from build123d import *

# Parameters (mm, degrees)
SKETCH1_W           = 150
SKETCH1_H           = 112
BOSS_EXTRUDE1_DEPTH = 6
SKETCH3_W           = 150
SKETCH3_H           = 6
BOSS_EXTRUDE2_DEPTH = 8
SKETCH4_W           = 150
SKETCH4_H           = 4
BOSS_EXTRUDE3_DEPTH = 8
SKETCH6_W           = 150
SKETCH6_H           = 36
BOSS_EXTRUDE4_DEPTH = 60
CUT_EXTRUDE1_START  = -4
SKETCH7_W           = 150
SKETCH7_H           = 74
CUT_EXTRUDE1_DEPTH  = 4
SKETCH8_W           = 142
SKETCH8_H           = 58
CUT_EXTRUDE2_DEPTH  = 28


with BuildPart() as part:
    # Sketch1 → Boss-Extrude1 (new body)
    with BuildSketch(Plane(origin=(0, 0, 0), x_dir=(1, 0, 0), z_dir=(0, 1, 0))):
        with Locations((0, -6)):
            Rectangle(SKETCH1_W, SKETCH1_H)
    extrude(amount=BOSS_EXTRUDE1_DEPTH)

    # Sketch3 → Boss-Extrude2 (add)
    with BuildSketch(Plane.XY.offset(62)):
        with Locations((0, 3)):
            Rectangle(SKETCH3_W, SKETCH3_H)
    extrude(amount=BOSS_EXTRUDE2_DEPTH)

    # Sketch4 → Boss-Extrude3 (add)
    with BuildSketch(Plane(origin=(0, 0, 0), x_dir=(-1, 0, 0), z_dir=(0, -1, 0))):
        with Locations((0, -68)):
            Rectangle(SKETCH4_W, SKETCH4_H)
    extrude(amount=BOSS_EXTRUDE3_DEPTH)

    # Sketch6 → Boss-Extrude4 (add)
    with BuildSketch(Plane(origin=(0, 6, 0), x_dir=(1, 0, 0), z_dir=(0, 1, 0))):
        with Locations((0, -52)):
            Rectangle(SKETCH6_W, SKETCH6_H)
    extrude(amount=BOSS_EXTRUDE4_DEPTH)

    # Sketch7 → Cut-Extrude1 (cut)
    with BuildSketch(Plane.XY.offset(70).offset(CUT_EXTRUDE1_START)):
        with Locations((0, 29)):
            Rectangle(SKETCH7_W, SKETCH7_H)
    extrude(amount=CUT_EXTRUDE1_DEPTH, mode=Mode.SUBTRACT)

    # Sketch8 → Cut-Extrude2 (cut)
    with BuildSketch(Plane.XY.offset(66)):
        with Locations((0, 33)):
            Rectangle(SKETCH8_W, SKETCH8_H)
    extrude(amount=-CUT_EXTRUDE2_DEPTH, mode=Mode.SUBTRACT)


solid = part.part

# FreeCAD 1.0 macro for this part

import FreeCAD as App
import Part
import Sketcher
from FreeCAD import Vector
Q = App.Units.Quantity

doc = App.newDocument("Part")
body = doc.addObject("PartDesign::Body", "Body")

# Sketch on XZ plane
sketch1 = body.newObject("Sketcher::SketchObject", "Sketch")
sketch1.AttachmentSupport = (doc.getObject("XZ_Plane"), [""])
sketch1.MapMode = "FlatFace"
sketch1.addGeometry(Part.LineSegment(Vector(-75, -50, 0), Vector(-75, 62, 0)), False)
sketch1.addGeometry(Part.LineSegment(Vector(-75, 62, 0), Vector(75, 62, 0)), False)
sketch1.addGeometry(Part.LineSegment(Vector(75, 62, 0), Vector(75, -50, 0)), False)
sketch1.addGeometry(Part.LineSegment(Vector(75, -50, 0), Vector(-75, -50, 0)), False)
sketch1.addConstraint(Sketcher.Constraint("Coincident", 0, 2, 1, 1))
sketch1.addConstraint(Sketcher.Constraint("Coincident", 1, 2, 2, 1))
sketch1.addConstraint(Sketcher.Constraint("Coincident", 2, 2, 3, 1))
sketch1.addConstraint(Sketcher.Constraint("Coincident", 3, 2, 0, 1))
sketch1.addConstraint(Sketcher.Constraint("Vertical", 0))
sketch1.addConstraint(Sketcher.Constraint("Horizontal", 1))
sketch1.addConstraint(Sketcher.Constraint("Vertical", 2))
sketch1.addConstraint(Sketcher.Constraint("Horizontal", 3))
sketch1.addConstraint(Sketcher.Constraint("DistanceX", 1, 1, 1, 2, Q("150 mm")))
sketch1.addConstraint(Sketcher.Constraint("DistanceY", 0, 1, 0, 2, Q("112 mm")))
sketch1.addConstraint(Sketcher.Constraint("DistanceX", 0, 2, -1, 1, Q("75 mm")))
sketch1.addConstraint(Sketcher.Constraint("DistanceY", -1, 1, 0, 2, Q("62 mm")))
pad1 = body.newObject("PartDesign::Pad", "Pad")
pad1.Profile = sketch1
pad1.Length = 6
pad1.Reversed = True

# Sketch on XY plane
sketch2 = body.newObject("Sketcher::SketchObject", "Sketch001")
sketch2.AttachmentSupport = (doc.getObject("XY_Plane"), [""])
sketch2.MapMode = "FlatFace"
sketch2.AttachmentOffset = App.Placement(Vector(0, 0, 62), App.Rotation())
sketch2.addGeometry(Part.LineSegment(Vector(-75, 6, 0), Vector(-75, 0, 0)), False)
sketch2.addGeometry(Part.LineSegment(Vector(-75, 0, 0), Vector(75, 0, 0)), False)
sketch2.addGeometry(Part.LineSegment(Vector(75, 0, 0), Vector(75, 6, 0)), False)
sketch2.addGeometry(Part.LineSegment(Vector(75, 6, 0), Vector(-75, 6, 0)), False)
sketch2.addConstraint(Sketcher.Constraint("Coincident", 0, 2, 1, 1))
sketch2.addConstraint(Sketcher.Constraint("Coincident", 1, 2, 2, 1))
sketch2.addConstraint(Sketcher.Constraint("Coincident", 2, 2, 3, 1))
sketch2.addConstraint(Sketcher.Constraint("Coincident", 3, 2, 0, 1))
sketch2.addConstraint(Sketcher.Constraint("Vertical", 0))
sketch2.addConstraint(Sketcher.Constraint("Horizontal", 1))
sketch2.addConstraint(Sketcher.Constraint("Vertical", 2))
sketch2.addConstraint(Sketcher.Constraint("Horizontal", 3))
sketch2.addConstraint(Sketcher.Constraint("Symmetric", 0, 2, 1, 2, -1, 1))
sketch2.addConstraint(Sketcher.Constraint("DistanceX", 1, 1, 1, 2, Q("150 mm")))
sketch2.addConstraint(Sketcher.Constraint("DistanceY", 0, 2, 0, 1, Q("6 mm")))
pad2 = body.newObject("PartDesign::Pad", "Pad001")
pad2.Profile = sketch2
pad2.Length = 8

# Sketch on XZ plane
sketch3 = body.newObject("Sketcher::SketchObject", "Sketch002")
sketch3.AttachmentSupport = (doc.getObject("XZ_Plane"), [""])
sketch3.MapMode = "FlatFace"
sketch3.addGeometry(Part.LineSegment(Vector(75, 66, 0), Vector(75, 70, 0)), False)
sketch3.addGeometry(Part.LineSegment(Vector(75, 70, 0), Vector(-75, 70, 0)), False)
sketch3.addGeometry(Part.LineSegment(Vector(-75, 70, 0), Vector(-75, 66, 0)), False)
sketch3.addGeometry(Part.LineSegment(Vector(-75, 66, 0), Vector(75, 66, 0)), False)
sketch3.addConstraint(Sketcher.Constraint("Coincident", 0, 2, 1, 1))
sketch3.addConstraint(Sketcher.Constraint("Coincident", 1, 2, 2, 1))
sketch3.addConstraint(Sketcher.Constraint("Coincident", 2, 2, 3, 1))
sketch3.addConstraint(Sketcher.Constraint("Coincident", 3, 2, 0, 1))
sketch3.addConstraint(Sketcher.Constraint("Vertical", 0))
sketch3.addConstraint(Sketcher.Constraint("Horizontal", 1))
sketch3.addConstraint(Sketcher.Constraint("Vertical", 2))
sketch3.addConstraint(Sketcher.Constraint("Horizontal", 3))
sketch3.addConstraint(Sketcher.Constraint("DistanceX", 1, 2, 1, 1, Q("150 mm")))
sketch3.addConstraint(Sketcher.Constraint("DistanceY", 0, 1, 0, 2, Q("4 mm")))
sketch3.addConstraint(Sketcher.Constraint("DistanceX", -1, 1, 0, 2, Q("75 mm")))
sketch3.addConstraint(Sketcher.Constraint("DistanceY", -1, 1, 0, 2, Q("70 mm")))
pad3 = body.newObject("PartDesign::Pad", "Pad002")
pad3.Profile = sketch3
pad3.Length = 8

# Sketch on XZ plane
sketch4 = body.newObject("Sketcher::SketchObject", "Sketch003")
sketch4.AttachmentSupport = (doc.getObject("XZ_Plane"), [""])
sketch4.MapMode = "FlatFace"
sketch4.AttachmentOffset = App.Placement(Vector(0, 0, -6), App.Rotation())
sketch4.addGeometry(Part.LineSegment(Vector(-75, 34, 0), Vector(-75, 70, 0)), False)
sketch4.addGeometry(Part.LineSegment(Vector(-75, 70, 0), Vector(75, 70, 0)), False)
sketch4.addGeometry(Part.LineSegment(Vector(75, 70, 0), Vector(75, 34, 0)), False)
sketch4.addGeometry(Part.LineSegment(Vector(75, 34, 0), Vector(-75, 34, 0)), False)
sketch4.addConstraint(Sketcher.Constraint("Coincident", 0, 2, 1, 1))
sketch4.addConstraint(Sketcher.Constraint("Coincident", 1, 2, 2, 1))
sketch4.addConstraint(Sketcher.Constraint("Coincident", 2, 2, 3, 1))
sketch4.addConstraint(Sketcher.Constraint("Coincident", 3, 2, 0, 1))
sketch4.addConstraint(Sketcher.Constraint("Vertical", 0))
sketch4.addConstraint(Sketcher.Constraint("Horizontal", 1))
sketch4.addConstraint(Sketcher.Constraint("Vertical", 2))
sketch4.addConstraint(Sketcher.Constraint("Horizontal", 3))
sketch4.addConstraint(Sketcher.Constraint("DistanceX", 1, 1, 1, 2, Q("150 mm")))
sketch4.addConstraint(Sketcher.Constraint("DistanceY", 0, 1, 0, 2, Q("36 mm")))
sketch4.addConstraint(Sketcher.Constraint("DistanceX", 0, 2, -1, 1, Q("75 mm")))
sketch4.addConstraint(Sketcher.Constraint("DistanceY", -1, 1, 0, 2, Q("70 mm")))
pad4 = body.newObject("PartDesign::Pad", "Pad003")
pad4.Profile = sketch4
pad4.Length = 60
pad4.Reversed = True

# Sketch on XY plane
sketch5 = body.newObject("Sketcher::SketchObject", "Sketch004")
sketch5.AttachmentSupport = (doc.getObject("XY_Plane"), [""])
sketch5.MapMode = "FlatFace"
sketch5.AttachmentOffset = App.Placement(Vector(0, 0, 66), App.Rotation())
sketch5.addGeometry(Part.LineSegment(Vector(-75, 66, 0), Vector(-75, -8, 0)), False)
sketch5.addGeometry(Part.LineSegment(Vector(-75, -8, 0), Vector(75, -8, 0)), False)
sketch5.addGeometry(Part.LineSegment(Vector(75, -8, 0), Vector(75, 66, 0)), False)
sketch5.addGeometry(Part.LineSegment(Vector(75, 66, 0), Vector(-75, 66, 0)), False)
sketch5.addConstraint(Sketcher.Constraint("Coincident", 0, 2, 1, 1))
sketch5.addConstraint(Sketcher.Constraint("Coincident", 1, 2, 2, 1))
sketch5.addConstraint(Sketcher.Constraint("Coincident", 2, 2, 3, 1))
sketch5.addConstraint(Sketcher.Constraint("Coincident", 3, 2, 0, 1))
sketch5.addConstraint(Sketcher.Constraint("Vertical", 0))
sketch5.addConstraint(Sketcher.Constraint("Horizontal", 1))
sketch5.addConstraint(Sketcher.Constraint("Vertical", 2))
sketch5.addConstraint(Sketcher.Constraint("Horizontal", 3))
sketch5.addConstraint(Sketcher.Constraint("DistanceX", 1, 1, 1, 2, Q("150 mm")))
sketch5.addConstraint(Sketcher.Constraint("DistanceY", 0, 2, 0, 1, Q("74 mm")))
sketch5.addConstraint(Sketcher.Constraint("DistanceX", 0, 2, -1, 1, Q("75 mm")))
sketch5.addConstraint(Sketcher.Constraint("DistanceY", 0, 2, -1, 1, Q("8 mm")))
pocket1 = body.newObject("PartDesign::Pocket", "Pocket")
pocket1.Profile = sketch5
pocket1.Length = 4
pocket1.Reversed = True

# Sketch on XY plane
sketch6 = body.newObject("Sketcher::SketchObject", "Sketch005")
sketch6.AttachmentSupport = (doc.getObject("XY_Plane"), [""])
sketch6.MapMode = "FlatFace"
sketch6.AttachmentOffset = App.Placement(Vector(0, 0, 66), App.Rotation())
sketch6.addGeometry(Part.LineSegment(Vector(-71, 62, 0), Vector(-71, 4, 0)), False)
sketch6.addGeometry(Part.LineSegment(Vector(-71, 4, 0), Vector(71, 4, 0)), False)
sketch6.addGeometry(Part.LineSegment(Vector(71, 4, 0), Vector(71, 62, 0)), False)
sketch6.addGeometry(Part.LineSegment(Vector(71, 62, 0), Vector(-71, 62, 0)), False)
sketch6.addConstraint(Sketcher.Constraint("Coincident", 0, 2, 1, 1))
sketch6.addConstraint(Sketcher.Constraint("Coincident", 1, 2, 2, 1))
sketch6.addConstraint(Sketcher.Constraint("Coincident", 2, 2, 3, 1))
sketch6.addConstraint(Sketcher.Constraint("Coincident", 3, 2, 0, 1))
sketch6.addConstraint(Sketcher.Constraint("Vertical", 0))
sketch6.addConstraint(Sketcher.Constraint("Horizontal", 1))
sketch6.addConstraint(Sketcher.Constraint("Vertical", 2))
sketch6.addConstraint(Sketcher.Constraint("Horizontal", 3))
sketch6.addConstraint(Sketcher.Constraint("DistanceX", 1, 1, 1, 2, Q("142 mm")))
sketch6.addConstraint(Sketcher.Constraint("DistanceY", 0, 2, 0, 1, Q("58 mm")))
sketch6.addConstraint(Sketcher.Constraint("DistanceX", 0, 2, -1, 1, Q("71 mm")))
sketch6.addConstraint(Sketcher.Constraint("DistanceY", -1, 1, 0, 2, Q("4 mm")))
pocket2 = body.newObject("PartDesign::Pocket", "Pocket001")
pocket2.Profile = sketch6
pocket2.Length = 28

doc.recompute()
